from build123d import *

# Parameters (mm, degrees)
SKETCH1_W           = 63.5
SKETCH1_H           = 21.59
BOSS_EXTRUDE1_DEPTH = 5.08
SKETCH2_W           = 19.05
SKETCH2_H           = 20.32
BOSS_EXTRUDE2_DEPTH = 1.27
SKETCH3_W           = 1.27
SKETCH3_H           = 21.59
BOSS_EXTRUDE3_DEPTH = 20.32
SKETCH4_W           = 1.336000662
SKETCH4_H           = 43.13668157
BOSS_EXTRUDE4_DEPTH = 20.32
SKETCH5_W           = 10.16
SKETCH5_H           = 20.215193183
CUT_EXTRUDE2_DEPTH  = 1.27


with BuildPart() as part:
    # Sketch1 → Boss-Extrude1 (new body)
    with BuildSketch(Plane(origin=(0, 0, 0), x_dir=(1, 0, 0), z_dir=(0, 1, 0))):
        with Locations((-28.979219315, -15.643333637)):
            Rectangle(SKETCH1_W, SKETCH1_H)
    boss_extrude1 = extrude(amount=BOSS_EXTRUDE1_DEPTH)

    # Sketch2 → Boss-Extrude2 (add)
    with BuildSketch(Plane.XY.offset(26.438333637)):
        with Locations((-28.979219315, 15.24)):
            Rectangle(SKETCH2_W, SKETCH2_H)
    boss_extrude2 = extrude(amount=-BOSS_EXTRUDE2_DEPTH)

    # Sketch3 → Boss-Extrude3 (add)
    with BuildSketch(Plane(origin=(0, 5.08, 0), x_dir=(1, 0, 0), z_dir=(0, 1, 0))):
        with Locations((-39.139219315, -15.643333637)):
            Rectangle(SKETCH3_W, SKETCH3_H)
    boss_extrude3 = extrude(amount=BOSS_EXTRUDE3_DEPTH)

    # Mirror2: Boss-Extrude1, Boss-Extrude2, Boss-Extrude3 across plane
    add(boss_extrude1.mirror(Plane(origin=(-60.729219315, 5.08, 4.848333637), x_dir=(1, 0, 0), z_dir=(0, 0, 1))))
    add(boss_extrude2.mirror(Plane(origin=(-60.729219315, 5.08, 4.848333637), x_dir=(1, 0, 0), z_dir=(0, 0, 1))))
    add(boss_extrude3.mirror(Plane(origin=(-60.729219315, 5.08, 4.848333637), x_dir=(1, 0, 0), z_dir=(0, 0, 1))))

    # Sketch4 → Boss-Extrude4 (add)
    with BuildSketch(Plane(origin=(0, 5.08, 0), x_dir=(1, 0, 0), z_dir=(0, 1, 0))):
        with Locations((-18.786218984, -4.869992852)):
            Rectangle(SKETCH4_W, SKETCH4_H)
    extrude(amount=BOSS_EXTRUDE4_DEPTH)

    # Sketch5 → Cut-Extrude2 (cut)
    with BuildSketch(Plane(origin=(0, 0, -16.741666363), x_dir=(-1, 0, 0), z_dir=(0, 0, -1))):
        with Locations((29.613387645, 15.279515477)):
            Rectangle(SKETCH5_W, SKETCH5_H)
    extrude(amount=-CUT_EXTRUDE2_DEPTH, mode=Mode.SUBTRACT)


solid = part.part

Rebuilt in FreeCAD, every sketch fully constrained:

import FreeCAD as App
import Part
import Sketcher

V = App.Vector
Q = App.Units.Quantity

doc = App.newDocument("Part")
body = doc.addObject("PartDesign::Body", "Body")

# Sketch on XZ plane
sketch1 = doc.addObject("Sketcher::SketchObject", "Sketch")
body.addObject(sketch1)
sketch1.AttachmentSupport = (doc.XZ_Plane, [""])
sketch1.MapMode = "FlatFace"
sketch1.addGeometry([
    Part.LineSegment(V(-61, 5, 0), V(-61, 26, 0)),
    Part.LineSegment(V(-61, 26, 0), V(3, 26, 0)),
    Part.LineSegment(V(3, 26, 0), V(3, 5, 0)),
    Part.LineSegment(V(3, 5, 0), V(-61, 5, 0)),
], False)
sketch1.addConstraint([
    Sketcher.Constraint("Coincident", 0, 2, 1, 1),
    Sketcher.Constraint("Coincident", 1, 2, 2, 1),
    Sketcher.Constraint("Coincident", 2, 2, 3, 1),
    Sketcher.Constraint("Coincident", 3, 2, 0, 1),
    Sketcher.Constraint("Vertical", 0),
    Sketcher.Constraint("Horizontal", 1),
    Sketcher.Constraint("Vertical", 2),
    Sketcher.Constraint("Horizontal", 3),
    Sketcher.Constraint("DistanceX", 1, 1, 1, 2, Q("2.5 in")),
    Sketcher.Constraint("DistanceY", 0, 1, 0, 2, Q("0.85 in")),
    Sketcher.Constraint("DistanceX", 0, 2, -1, 1, 60.729219),
    Sketcher.Constraint("DistanceY", -1, 1, 0, 2, 26.438334),
])
pad1 = doc.addObject("PartDesign::Pad", "Pad")
body.addObject(pad1)
pad1.Profile = sketch1
pad1.Length = Q("0.2 in")
pad1.Reversed = True

# Sketch on XY plane
sketch2 = doc.addObject("Sketcher::SketchObject", "Sketch001")
body.addObject(sketch2)
sketch2.AttachmentSupport = (doc.XY_Plane, [""])
sketch2.MapMode = "FlatFace"
sketch2.AttachmentOffset = App.Placement(V(0, 0, 26.438334), App.Rotation())
sketch2.addGeometry([
    Part.LineSegment(V(-39, 25, 0), V(-39, 5, 0)),
    Part.LineSegment(V(-39, 5, 0), V(-19, 5, 0)),
    Part.LineSegment(V(-19, 5, 0), V(-19, 25, 0)),
    Part.LineSegment(V(-19, 25, 0), V(-39, 25, 0)),
], False)
sketch2.addConstraint([
    Sketcher.Constraint("Coincident", 0, 2, 1, 1),
    Sketcher.Constraint("Coincident", 1, 2, 2, 1),
    Sketcher.Constraint("Coincident", 2, 2, 3, 1),
    Sketcher.Constraint("Coincident", 3, 2, 0, 1),
    Sketcher.Constraint("Vertical", 0),
    Sketcher.Constraint("Horizontal", 1),
    Sketcher.Constraint("Vertical", 2),
    Sketcher.Constraint("Horizontal", 3),
    Sketcher.Constraint("DistanceY", 0, 2, 0, 1, Q("0.8 in")),
    Sketcher.Constraint("DistanceY", -1, 1, 2, 2, Q("1 in")),
    Sketcher.Constraint("DistanceX", 1, 1, 1, 2, Q("0.75 in")),
    Sketcher.Constraint("DistanceX", 0, 2, -1, 1, 38.504219),
])
pad2 = doc.addObject("PartDesign::Pad", "Pad001")
body.addObject(pad2)
pad2.Profile = sketch2
pad2.Length = Q("0.05 in")
pad2.Reversed = True

# Sketch on XZ plane
sketch3 = doc.addObject("Sketcher::SketchObject", "Sketch002")
body.addObject(sketch3)
sketch3.AttachmentSupport = (doc.XZ_Plane, [""])
sketch3.MapMode = "FlatFace"
sketch3.AttachmentOffset = App.Placement(V(0, 0, -0.2 * 25.4), App.Rotation())
sketch3.addGeometry([
    Part.LineSegment(V(-39.8, 4.8, 0), V(-39.8, 26.4, 0)),
    Part.LineSegment(V(-39.8, 26.4, 0), V(-38.5, 26.4, 0)),
    Part.LineSegment(V(-38.5, 26.4, 0), V(-38.5, 4.8, 0)),
    Part.LineSegment(V(-38.5, 4.8, 0), V(-39.8, 4.8, 0)),
], False)
sketch3.addConstraint([
    Sketcher.Constraint("Coincident", 0, 2, 1, 1),
    Sketcher.Constraint("Coincident", 1, 2, 2, 1),
    Sketcher.Constraint("Coincident", 2, 2, 3, 1),
    Sketcher.Constraint("Coincident", 3, 2, 0, 1),
    Sketcher.Constraint("Vertical", 0),
    Sketcher.Constraint("Horizontal", 1),
    Sketcher.Constraint("Vertical", 2),
    Sketcher.Constraint("Horizontal", 3),
    Sketcher.Constraint("DistanceX", 1, 1, 1, 2, Q("0.05 in")),
    Sketcher.Constraint("DistanceY", 0, 1, 0, 2, Q("0.85 in")),
    Sketcher.Constraint("DistanceX", 0, 2, -1, 1, 39.774219),
    Sketcher.Constraint("DistanceY", -1, 1, 0, 2, 26.438334),
])
pad3 = doc.addObject("PartDesign::Pad", "Pad002")
body.addObject(pad3)
pad3.Profile = sketch3
pad3.Length = Q("0.8 in")
pad3.Reversed = True
doc.recompute()

datumplane = doc.addObject("PartDesign::Plane", "DatumPlane")
body.addObject(datumplane)
datumplane.AttachmentSupport = (doc.XY_Plane, [""])
datumplane.MapMode = "FlatFace"
datumplane.AttachmentOffset = App.Placement(V(0, 0, 4.848334), App.Rotation())
mirrored = doc.addObject("PartDesign::Mirrored", "Mirrored")
body.addObject(mirrored)
mirrored.Originals = [pad1, pad2, pad3]
mirrored.MirrorPlane = (datumplane, [""])
body.Tip = mirrored

# Sketch on XZ plane
sketch4 = doc.addObject("Sketcher::SketchObject", "Sketch003")
body.addObject(sketch4)
sketch4.AttachmentSupport = (doc.XZ_Plane, [""])
sketch4.MapMode = "FlatFace"
sketch4.AttachmentOffset = App.Placement(V(0, 0, -0.2 * 25.4), App.Rotation())
sketch4.addGeometry([
    Part.LineSegment(V(-19.5, -16.7, 0), V(-19.5, 26.4, 0)),
    Part.LineSegment(V(-19.5, 26.4, 0), V(-18.1, 26.4, 0)),
    Part.LineSegment(V(-18.1, 26.4, 0), V(-18.1, -16.7, 0)),
    Part.LineSegment(V(-18.1, -16.7, 0), V(-19.5, -16.7, 0)),
], False)
sketch4.addConstraint([
    Sketcher.Constraint("Coincident", 0, 2, 1, 1),
    Sketcher.Constraint("Coincident", 1, 2, 2, 1),
    Sketcher.Constraint("Coincident", 2, 2, 3, 1),
    Sketcher.Constraint("Coincident", 3, 2, 0, 1),
    Sketcher.Constraint("Vertical", 0),
    Sketcher.Constraint("Horizontal", 1),
    Sketcher.Constraint("Vertical", 2),
    Sketcher.Constraint("Horizontal", 3),
    Sketcher.Constraint("DistanceX", 1, 1, 1, 2, 1.336001),
    Sketcher.Constraint("DistanceY", 0, 1, 0, 2, 43.136682),
    Sketcher.Constraint("DistanceX", 0, 2, -1, 1, 19.454219),
    Sketcher.Constraint("DistanceY", -1, 1, 0, 2, 26.438334),
])
pad4 = doc.addObject("PartDesign::Pad", "Pad003")
body.addObject(pad4)
pad4.Profile = sketch4
pad4.Length = Q("0.8 in")
pad4.Reversed = True

# Sketch on XY plane
sketch5 = doc.addObject("Sketcher::SketchObject", "Sketch004")
body.addObject(sketch5)
sketch5.AttachmentSupport = (doc.XY_Plane, [""])
sketch5.MapMode = "FlatFace"
sketch5.AttachmentOffset = App.Placement(V(0, 0, -16.741666), App.Rotation())
sketch5.addGeometry([
    Part.LineSegment(V(-25, 25, 0), V(-25, 5, 0)),
    Part.LineSegment(V(-25, 5, 0), V(-35, 5, 0)),
    Part.LineSegment(V(-35, 5, 0), V(-35, 25, 0)),
    Part.LineSegment(V(-35, 25, 0), V(-25, 25, 0)),
], False)
sketch5.addConstraint([
    Sketcher.Constraint("Coincident", 0, 2, 1, 1),
    Sketcher.Constraint("Coincident", 1, 2, 2, 1),
    Sketcher.Constraint("Coincident", 2, 2, 3, 1),
    Sketcher.Constraint("Coincident", 3, 2, 0, 1),
    Sketcher.Constraint("Vertical", 0),
    Sketcher.Constraint("Horizontal", 1),
    Sketcher.Constraint("Vertical", 2),
    Sketcher.Constraint("Horizontal", 3),
    Sketcher.Constraint("DistanceX", 1, 2, 1, 1, Q("0.4 in")),
    Sketcher.Constraint("DistanceY", 0, 2, 0, 1, 20.215193),
    Sketcher.Constraint("DistanceY", -1, 1, 0, 2, 5.171919),
    Sketcher.Constraint("DistanceX", 0, 2, -1, 1, 24.533388),
])
pocket1 = doc.addObject("PartDesign::Pocket", "Pocket")
body.addObject(pocket1)
pocket1.Profile = sketch5
pocket1.Length = Q("0.05 in")
pocket1.Reversed = True

doc.recompute()
